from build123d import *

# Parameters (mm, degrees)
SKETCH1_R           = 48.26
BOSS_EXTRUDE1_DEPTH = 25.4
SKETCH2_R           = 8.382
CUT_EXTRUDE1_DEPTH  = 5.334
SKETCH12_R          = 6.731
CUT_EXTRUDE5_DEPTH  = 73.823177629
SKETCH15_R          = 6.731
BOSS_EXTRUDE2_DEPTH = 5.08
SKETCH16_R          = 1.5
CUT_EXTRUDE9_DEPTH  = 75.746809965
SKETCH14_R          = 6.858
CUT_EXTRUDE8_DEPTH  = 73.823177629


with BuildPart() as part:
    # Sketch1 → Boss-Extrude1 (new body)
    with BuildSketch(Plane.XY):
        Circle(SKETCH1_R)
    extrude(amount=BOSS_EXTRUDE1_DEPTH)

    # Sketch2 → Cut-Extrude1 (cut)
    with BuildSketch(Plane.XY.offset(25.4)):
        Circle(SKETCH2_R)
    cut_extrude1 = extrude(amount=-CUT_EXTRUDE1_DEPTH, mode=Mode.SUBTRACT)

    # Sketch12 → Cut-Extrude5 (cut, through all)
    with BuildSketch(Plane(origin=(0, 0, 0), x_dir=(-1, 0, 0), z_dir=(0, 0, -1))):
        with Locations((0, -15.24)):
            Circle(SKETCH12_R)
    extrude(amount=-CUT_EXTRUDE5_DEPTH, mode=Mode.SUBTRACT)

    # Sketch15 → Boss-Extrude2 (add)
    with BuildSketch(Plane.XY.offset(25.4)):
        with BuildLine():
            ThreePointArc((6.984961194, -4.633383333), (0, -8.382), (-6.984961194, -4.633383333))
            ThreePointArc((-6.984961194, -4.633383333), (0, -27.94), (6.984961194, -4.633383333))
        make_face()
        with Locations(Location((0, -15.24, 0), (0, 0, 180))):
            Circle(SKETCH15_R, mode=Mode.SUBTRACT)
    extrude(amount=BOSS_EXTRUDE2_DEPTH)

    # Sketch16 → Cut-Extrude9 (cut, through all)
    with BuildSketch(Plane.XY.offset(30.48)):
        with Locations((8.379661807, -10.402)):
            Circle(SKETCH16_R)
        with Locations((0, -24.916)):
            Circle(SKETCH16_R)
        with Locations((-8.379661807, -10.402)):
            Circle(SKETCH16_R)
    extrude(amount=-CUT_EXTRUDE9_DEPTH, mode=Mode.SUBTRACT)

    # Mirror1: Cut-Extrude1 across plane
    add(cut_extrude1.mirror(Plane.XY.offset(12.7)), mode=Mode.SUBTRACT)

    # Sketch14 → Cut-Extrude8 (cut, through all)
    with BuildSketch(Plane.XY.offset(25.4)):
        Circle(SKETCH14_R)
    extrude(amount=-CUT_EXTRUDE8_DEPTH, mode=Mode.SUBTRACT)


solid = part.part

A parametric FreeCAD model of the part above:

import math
import FreeCAD as App
import Part
import Sketcher

V = App.Vector
Q = App.Units.Quantity

doc = App.newDocument("Part")
body = doc.addObject("PartDesign::Body", "Body")

# Sketch on XY plane
sketch1 = body.newObject("Sketcher::SketchObject", "Sketch")
sketch1.AttachmentSupport = (doc.getObject("XY_Plane"), [""])
sketch1.MapMode = "FlatFace"
sketch1.addGeometry(Part.Circle(V(0, 0, 0), V(0, 0, 1), 48), False)
sketch1.addConstraint(Sketcher.Constraint("Coincident", 0, 3, -1, 1))
sketch1.addConstraint(Sketcher.Constraint("Diameter", 0, Q("3.8 in")))
pad1 = body.newObject("PartDesign::Pad", "Pad")
pad1.Profile = sketch1
pad1.Length = Q("1 in")

# Sketch on XY plane
sketch2 = body.newObject("Sketcher::SketchObject", "Sketch001")
sketch2.AttachmentSupport = (doc.getObject("XY_Plane"), [""])
sketch2.MapMode = "FlatFace"
sketch2.AttachmentOffset = App.Placement(V(0, 0, 1 * 25.4), App.Rotation())
sketch2.addGeometry(Part.Circle(V(0, 0, 0), V(0, 0, 1), 8), False)
sketch2.addConstraint(Sketcher.Constraint("Coincident", 0, 3, -1, 1))
sketch2.addConstraint(Sketcher.Constraint("Diameter", 0, Q("0.66 in")))
pocket1 = body.newObject("PartDesign::Pocket", "Pocket")
pocket1.Profile = sketch2
pocket1.Length = Q("0.21 in")

# Sketch on XY plane
sketch3 = body.newObject("Sketcher::SketchObject", "Sketch002")
sketch3.AttachmentSupport = (doc.getObject("XY_Plane"), [""])
sketch3.MapMode = "FlatFace"
sketch3.addGeometry(Part.Circle(V(0, -15, 0), V(0, 0, 1), 7), False)
sketch3.addConstraint(Sketcher.Constraint("PointOnObject", 0, 3, -2))
sketch3.addConstraint(Sketcher.Constraint("Diameter", 0, Q("0.53 in")))
sketch3.addConstraint(Sketcher.Constraint("DistanceY", 0, 3, -1, 1, Q("0.6 in")))
pocket2 = body.newObject("PartDesign::Pocket", "Pocket001")
pocket2.Profile = sketch3
pocket2.Type = "ThroughAll"
pocket2.Reversed = True

# Sketch on XY plane
sketch4 = body.newObject("Sketcher::SketchObject", "Sketch003")
sketch4.AttachmentSupport = (doc.getObject("XY_Plane"), [""])
sketch4.MapMode = "FlatFace"
sketch4.AttachmentOffset = App.Placement(V(0, 0, 1 * 25.4), App.Rotation())
sketch4.addGeometry(Part.ArcOfCircle(Part.Circle(V(0, 0, 0), V(0, 0, 1), 8), math.radians(-146), math.radians(-34)), False)
sketch4.addGeometry(Part.ArcOfCircle(Part.Circle(V(0, -15, 0), V(0, 0, 1), 13), math.radians(123), math.radians(417)), False)
sketch4.addGeometry(Part.Circle(V(0, -15, 0), V(0, 0, 1), 7), False)
sketch4.addConstraint(Sketcher.Constraint("Coincident", 0, 1, 1, 1))
sketch4.addConstraint(Sketcher.Constraint("Coincident", 1, 2, 0, 2))
sketch4.addConstraint(Sketcher.Constraint("Coincident", 0, 3, -1, 1))
sketch4.addConstraint(Sketcher.Constraint("Coincident", 2, 3, 1, 3))
sketch4.addConstraint(Sketcher.Constraint("PointOnObject", 1, 3, -2))
sketch4.addConstraint(Sketcher.Constraint("Radius", 1, Q("0.5 in")))
sketch4.addConstraint(Sketcher.Constraint("Diameter", 2, Q("0.53 in")))
sketch4.addConstraint(Sketcher.Constraint("Radius", 0, Q("0.33 in")))
sketch4.addConstraint(Sketcher.Constraint("DistanceY", 1, 3, -1, 1, Q("0.6 in")))
pad2 = body.newObject("PartDesign::Pad", "Pad001")
pad2.Profile = sketch4
pad2.Length = Q("0.2 in")

# Sketch on XY plane
sketch5 = body.newObject("Sketcher::SketchObject", "Sketch004")
sketch5.AttachmentSupport = (doc.getObject("XY_Plane"), [""])
sketch5.MapMode = "FlatFace"
sketch5.AttachmentOffset = App.Placement(V(0, 0, 1.2 * 25.4), App.Rotation())
sketch5.addGeometry(Part.Circle(V(8.4, -10.4, 0), V(0, 0, 1), 1.5), False)
sketch5.addGeometry(Part.Circle(V(0, -24.9, 0), V(0, 0, 1), 1.5), False)
sketch5.addGeometry(Part.Circle(V(-8.4, -10.4, 0), V(0, 0, 1), 1.5), False)
sketch5.addConstraint(Sketcher.Constraint("Equal", 0, 1))
sketch5.addConstraint(Sketcher.Constraint("Equal", 1, 2))
sketch5.addConstraint(Sketcher.Constraint("Symmetric", 0, 3, 2, 3, -2))
sketch5.addConstraint(Sketcher.Constraint("PointOnObject", 1, 3, -2))
sketch5.addConstraint(Sketcher.Constraint("Diameter", 0, 3.0))
sketch5.addConstraint(Sketcher.Constraint("DistanceY", 0, 3, -1, 1, 10.402))
sketch5.addConstraint(Sketcher.Constraint("DistanceY", 1, 3, -1, 1, 24.916))
sketch5.addConstraint(Sketcher.Constraint("DistanceX", -1, 1, 0, 3, 8.379662))
pocket3 = body.newObject("PartDesign::Pocket", "Pocket002")
pocket3.Profile = sketch5
pocket3.Type = "ThroughAll"
doc.recompute()

datumplane = body.newObject("PartDesign::Plane", "DatumPlane")
datumplane.AttachmentSupport = (doc.getObject("XY_Plane"), [""])
datumplane.MapMode = "FlatFace"
datumplane.AttachmentOffset = App.Placement(V(0, 0, 0.5 * 25.4), App.Rotation())
mirrored = body.newObject("PartDesign::Mirrored", "Mirrored")
mirrored.Originals = [pocket1]
mirrored.MirrorPlane = (datumplane, [""])
body.Tip = mirrored

# Sketch on XY plane
sketch6 = body.newObject("Sketcher::SketchObject", "Sketch005")
sketch6.AttachmentSupport = (doc.getObject("XY_Plane"), [""])
sketch6.MapMode = "FlatFace"
sketch6.AttachmentOffset = App.Placement(V(0, 0, 1 * 25.4), App.Rotation())
sketch6.addGeometry(Part.Circle(V(0, 0, 0), V(0, 0, 1), 7), False)
sketch6.addConstraint(Sketcher.Constraint("Coincident", 0, 3, -1, 1))
sketch6.addConstraint(Sketcher.Constraint("Diameter", 0, Q("0.54 in")))
pocket4 = body.newObject("PartDesign::Pocket", "Pocket003")
pocket4.Profile = sketch6
pocket4.Type = "ThroughAll"

doc.recompute()
